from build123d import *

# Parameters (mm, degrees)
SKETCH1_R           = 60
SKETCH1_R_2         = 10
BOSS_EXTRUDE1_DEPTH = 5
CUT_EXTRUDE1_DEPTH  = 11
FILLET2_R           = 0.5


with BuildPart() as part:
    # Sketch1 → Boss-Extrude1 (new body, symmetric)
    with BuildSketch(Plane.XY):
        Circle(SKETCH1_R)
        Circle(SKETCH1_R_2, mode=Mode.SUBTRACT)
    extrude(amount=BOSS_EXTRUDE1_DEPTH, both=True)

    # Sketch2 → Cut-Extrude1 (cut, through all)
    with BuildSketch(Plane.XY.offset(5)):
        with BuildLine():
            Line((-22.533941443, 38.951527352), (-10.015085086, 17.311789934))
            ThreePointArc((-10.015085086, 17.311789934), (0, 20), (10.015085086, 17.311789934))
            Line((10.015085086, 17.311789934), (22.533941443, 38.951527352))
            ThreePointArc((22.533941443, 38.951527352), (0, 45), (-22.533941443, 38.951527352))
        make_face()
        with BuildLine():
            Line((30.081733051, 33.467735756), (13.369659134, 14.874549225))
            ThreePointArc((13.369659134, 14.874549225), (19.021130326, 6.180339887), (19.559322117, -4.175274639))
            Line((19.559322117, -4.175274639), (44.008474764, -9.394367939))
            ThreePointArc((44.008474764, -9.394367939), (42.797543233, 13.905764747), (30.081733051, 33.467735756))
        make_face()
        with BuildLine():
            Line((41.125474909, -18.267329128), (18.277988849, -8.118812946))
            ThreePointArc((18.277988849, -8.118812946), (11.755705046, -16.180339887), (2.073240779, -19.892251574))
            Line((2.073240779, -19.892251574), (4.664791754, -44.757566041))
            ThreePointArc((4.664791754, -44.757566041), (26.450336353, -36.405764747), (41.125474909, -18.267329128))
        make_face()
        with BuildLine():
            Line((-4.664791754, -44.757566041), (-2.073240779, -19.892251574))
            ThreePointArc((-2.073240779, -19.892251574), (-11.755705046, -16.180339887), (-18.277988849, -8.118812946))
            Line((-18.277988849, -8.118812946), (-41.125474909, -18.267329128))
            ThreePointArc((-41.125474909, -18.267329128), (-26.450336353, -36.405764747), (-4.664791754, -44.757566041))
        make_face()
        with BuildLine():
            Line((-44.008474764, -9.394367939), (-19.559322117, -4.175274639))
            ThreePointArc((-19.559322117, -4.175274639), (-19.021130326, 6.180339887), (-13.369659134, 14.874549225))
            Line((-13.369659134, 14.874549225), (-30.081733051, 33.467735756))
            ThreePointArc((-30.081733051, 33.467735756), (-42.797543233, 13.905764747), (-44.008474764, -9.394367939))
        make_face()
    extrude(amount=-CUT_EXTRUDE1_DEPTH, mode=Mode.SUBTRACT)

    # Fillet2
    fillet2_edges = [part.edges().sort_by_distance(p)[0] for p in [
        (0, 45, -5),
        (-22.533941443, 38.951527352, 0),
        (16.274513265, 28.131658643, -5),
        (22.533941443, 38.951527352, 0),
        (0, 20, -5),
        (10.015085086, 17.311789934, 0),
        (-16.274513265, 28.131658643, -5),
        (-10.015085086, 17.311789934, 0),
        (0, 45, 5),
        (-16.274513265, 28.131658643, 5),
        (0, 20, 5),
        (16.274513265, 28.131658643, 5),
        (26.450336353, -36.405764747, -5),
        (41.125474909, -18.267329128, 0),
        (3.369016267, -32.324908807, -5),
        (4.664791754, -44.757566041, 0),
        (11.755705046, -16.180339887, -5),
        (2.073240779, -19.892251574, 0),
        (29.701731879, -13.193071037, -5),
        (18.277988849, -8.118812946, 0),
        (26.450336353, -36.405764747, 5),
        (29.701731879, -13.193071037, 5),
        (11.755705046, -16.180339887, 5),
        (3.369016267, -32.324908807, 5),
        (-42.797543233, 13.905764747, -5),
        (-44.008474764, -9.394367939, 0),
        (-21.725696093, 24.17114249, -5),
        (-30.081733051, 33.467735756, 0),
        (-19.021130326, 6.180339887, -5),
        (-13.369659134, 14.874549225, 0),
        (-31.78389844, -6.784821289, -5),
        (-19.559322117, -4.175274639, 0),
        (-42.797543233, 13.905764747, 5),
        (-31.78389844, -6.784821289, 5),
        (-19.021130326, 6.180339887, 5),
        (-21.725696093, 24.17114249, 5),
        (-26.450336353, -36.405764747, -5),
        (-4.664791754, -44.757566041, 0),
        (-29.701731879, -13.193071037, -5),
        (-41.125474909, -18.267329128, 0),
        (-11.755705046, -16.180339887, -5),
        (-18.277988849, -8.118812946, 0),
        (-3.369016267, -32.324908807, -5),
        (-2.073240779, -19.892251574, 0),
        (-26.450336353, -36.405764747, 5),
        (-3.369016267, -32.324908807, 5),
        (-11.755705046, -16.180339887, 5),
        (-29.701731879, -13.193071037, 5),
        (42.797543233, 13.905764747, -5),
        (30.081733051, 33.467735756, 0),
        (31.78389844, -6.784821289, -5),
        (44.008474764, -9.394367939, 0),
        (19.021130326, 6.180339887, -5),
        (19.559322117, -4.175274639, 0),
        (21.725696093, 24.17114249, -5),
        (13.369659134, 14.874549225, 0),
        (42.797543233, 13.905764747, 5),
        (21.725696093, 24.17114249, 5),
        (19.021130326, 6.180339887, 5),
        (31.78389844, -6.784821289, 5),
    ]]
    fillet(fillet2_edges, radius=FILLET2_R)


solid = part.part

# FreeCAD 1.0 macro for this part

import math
import FreeCAD as App
import Part
import Sketcher
from FreeCAD import Vector
Q = App.Units.Quantity


def edges_at(feature, points):
    """Names of the edges that pass closest to the given points."""
    edges = feature.Shape.Edges
    near = lambda p: min(range(len(edges)), key=lambda i: edges[i].distToShape(Part.Vertex(*p))[0])
    return sorted({f"Edge{near(p) + 1}" for p in points})

doc = App.newDocument("Part")
body = doc.addObject("PartDesign::Body", "Body")

# Sketch on XY plane
sketch1 = body.newObject("Sketcher::SketchObject", "Sketch")
sketch1.AttachmentSupport = (doc.getObject("XY_Plane"), [""])
sketch1.MapMode = "FlatFace"
sketch1.addGeometry([
    Part.Circle(Vector(0, 0, 0), Vector(0, 0, 1), 60),
    Part.Circle(Vector(0, 0, 0), Vector(0, 0, 1), 10),
], False)
sketch1.addConstraint([
    Sketcher.Constraint("Coincident", 0, 3, -1, 1),
    Sketcher.Constraint("Coincident", 1, 3, -1, 1),
    Sketcher.Constraint("Diameter", 0, Q("120 mm")),
    Sketcher.Constraint("Diameter", 1, Q("20 mm")),
])
pad1 = body.newObject("PartDesign::Pad", "Pad")
pad1.Profile = sketch1
pad1.Length = 10
pad1.Midplane = True

# Sketch on XY plane
sketch2 = body.newObject("Sketcher::SketchObject", "Sketch001")
sketch2.AttachmentSupport = (doc.getObject("XY_Plane"), [""])
sketch2.MapMode = "FlatFace"
sketch2.AttachmentOffset = App.Placement(Vector(0, 0, 5), App.Rotation())
sketch2.addGeometry([
    Part.LineSegment(Vector(-23, 39, 0), Vector(-10, 17, 0)),  # 0
    Part.ArcOfCircle(Part.Circle(Vector(0, 0, 0), Vector(0, 0, 1), 20), math.radians(60), math.radians(120)),  # 1
    Part.LineSegment(Vector(10, 17, 0), Vector(23, 39, 0)),  # 2
    Part.ArcOfCircle(Part.Circle(Vector(0, 0, 0), Vector(0, 0, 1), 45), math.radians(60), math.radians(120)),  # 3
    Part.LineSegment(Vector(30, 33, 0), Vector(13, 15, 0)),  # 4
    Part.ArcOfCircle(Part.Circle(Vector(0, 0, 0), Vector(0, 0, 1), 20), math.radians(-12), math.radians(48)),  # 5
    Part.LineSegment(Vector(20, -4, 0), Vector(44, -9, 0)),  # 6
    Part.ArcOfCircle(Part.Circle(Vector(0, 0, 0), Vector(0, 0, 1), 45), math.radians(-12), math.radians(48)),  # 7
    Part.LineSegment(Vector(41, -18, 0), Vector(18, -8, 0)),  # 8
    Part.ArcOfCircle(Part.Circle(Vector(0, 0, 0), Vector(0, 0, 1), 20), math.radians(-84), math.radians(-24)),  # 9
    Part.LineSegment(Vector(2, -20, 0), Vector(5, -45, 0)),  # 10
    Part.ArcOfCircle(Part.Circle(Vector(0, 0, 0), Vector(0, 0, 1), 45), math.radians(-84), math.radians(-24)),  # 11
    Part.LineSegment(Vector(-5, -45, 0), Vector(-2, -20, 0)),  # 12
    Part.ArcOfCircle(Part.Circle(Vector(0, 0, 0), Vector(0, 0, 1), 20), math.radians(-156), math.radians(-96)),  # 13
    Part.LineSegment(Vector(-18, -8, 0), Vector(-41, -18, 0)),  # 14
    Part.ArcOfCircle(Part.Circle(Vector(0, 0, 0), Vector(0, 0, 1), 45), math.radians(-156), math.radians(-96)),  # 15
    Part.LineSegment(Vector(-44, -9, 0), Vector(-20, -4, 0)),  # 16
    Part.ArcOfCircle(Part.Circle(Vector(0, 0, 0), Vector(0, 0, 1), 20), math.radians(132), math.radians(192)),  # 17
    Part.LineSegment(Vector(-13, 15, 0), Vector(-30, 33, 0)),  # 18
    Part.ArcOfCircle(Part.Circle(Vector(0, 0, 0), Vector(0, 0, 1), 45), math.radians(132), math.radians(192)),  # 19
], False)
sketch2.addConstraint([
    Sketcher.Constraint("Coincident", 0, 2, 1, 2),
    Sketcher.Constraint("Coincident", 1, 1, 2, 1),
    Sketcher.Constraint("Coincident", 2, 2, 3, 1),
    Sketcher.Constraint("Coincident", 3, 2, 0, 1),
    Sketcher.Constraint("Coincident", 4, 2, 5, 2),
    Sketcher.Constraint("Coincident", 5, 1, 6, 1),
    Sketcher.Constraint("Coincident", 6, 2, 7, 1),
    Sketcher.Constraint("Coincident", 7, 2, 4, 1),
    Sketcher.Constraint("Coincident", 8, 2, 9, 2),
    Sketcher.Constraint("Coincident", 9, 1, 10, 1),
    Sketcher.Constraint("Coincident", 10, 2, 11, 1),
    Sketcher.Constraint("Coincident", 11, 2, 8, 1),
    Sketcher.Constraint("Coincident", 12, 2, 13, 2),
    Sketcher.Constraint("Coincident", 13, 1, 14, 1),
    Sketcher.Constraint("Coincident", 14, 2, 15, 1),
    Sketcher.Constraint("Coincident", 15, 2, 12, 1),
    Sketcher.Constraint("Coincident", 16, 2, 17, 2),
    Sketcher.Constraint("Coincident", 17, 1, 18, 1),
    Sketcher.Constraint("Coincident", 18, 2, 19, 1),
    Sketcher.Constraint("Coincident", 19, 2, 16, 1),
    Sketcher.Constraint("Coincident", 1, 3, -1, 1),
    Sketcher.Constraint("Coincident", 3, 3, -1, 1),
    Sketcher.Constraint("Coincident", 5, 3, -1, 1),
    Sketcher.Constraint("Coincident", 7, 3, -1, 1),
    Sketcher.Constraint("Coincident", 9, 3, -1, 1),
    Sketcher.Constraint("Coincident", 11, 3, -1, 1),
    Sketcher.Constraint("Coincident", 13, 3, -1, 1),
    Sketcher.Constraint("Coincident", 15, 3, -1, 1),
    Sketcher.Constraint("Coincident", 17, 3, -1, 1),
    Sketcher.Constraint("Coincident", 19, 3, -1, 1),
    Sketcher.Constraint("Equal", 1, 5),
    Sketcher.Constraint("Equal", 3, 7),
    Sketcher.Constraint("Equal", 5, 9),
    Sketcher.Constraint("Equal", 7, 11),
    Sketcher.Constraint("Equal", 9, 13),
    Sketcher.Constraint("Equal", 11, 15),
    Sketcher.Constraint("Equal", 13, 17),
    Sketcher.Constraint("Equal", 15, 19),
    Sketcher.Constraint("Horizontal", 0, 2, 1, 1),
    Sketcher.Constraint("Horizontal", 2, 2, 3, 2),
    Sketcher.Constraint("Horizontal", 9, 1, 12, 2),
    Sketcher.Constraint("Horizontal", 8, 2, 13, 1),
    Sketcher.Constraint("Horizontal", 11, 2, 14, 2),
    Sketcher.Constraint("Horizontal", 10, 2, 15, 2),
    Sketcher.Constraint("Horizontal", 5, 1, 16, 2),
    Sketcher.Constraint("Horizontal", 4, 2, 17, 1),
    Sketcher.Constraint("Horizontal", 7, 2, 18, 2),
    Sketcher.Constraint("Horizontal", 6, 2, 19, 2),
    Sketcher.Constraint("Radius", 1, Q("20 mm")),
    Sketcher.Constraint("Radius", 3, Q("45 mm")),
    Sketcher.Constraint("DistanceX", 11, 2, 6, 2, Q("2.883 mm")),
    Sketcher.Constraint("DistanceY", -1, 1, 0, 2, Q("17.31179 mm")),
    Sketcher.Constraint("DistanceX", -1, 1, 2, 2, Q("22.533941 mm")),
    Sketcher.Constraint("DistanceX", -1, 1, 4, 2, Q("13.369659 mm")),
    Sketcher.Constraint("DistanceX", -1, 1, 8, 2, Q("18.277989 mm")),
    Sketcher.Constraint("DistanceX", -1, 1, 9, 1, Q("2.073241 mm")),
    Sketcher.Constraint("DistanceX", -1, 1, 10, 2, Q("4.664792 mm")),
    Sketcher.Constraint("DistanceY", 11, 2, -1, 1, Q("18.267329 mm")),
    Sketcher.Constraint("DistanceX", 2, 2, 7, 2, Q("7.547792 mm")),
    Sketcher.Constraint("DistanceX", 5, 1, 7, 2, Q("10.522411 mm")),
])
pocket1 = body.newObject("PartDesign::Pocket", "Pocket")
pocket1.Profile = sketch2
pocket1.Type = "ThroughAll"
doc.recompute()

fillet = body.newObject("PartDesign::Fillet", "Fillet")
fillet.Base = (pocket1, edges_at(pocket1, [
    (0, 45, -5),
    (-22.534, 38.952, 0),
    (16.275, 28.132, -5),
    (22.534, 38.952, 0),
    (0, 20, -5),
    (10.015, 17.312, 0),
    (-16.275, 28.132, -5),
    (-10.015, 17.312, 0),
    (0, 45, 5),
    (-16.275, 28.132, 5),
    (0, 20, 5),
    (16.275, 28.132, 5),
    (26.45, -36.406, -5),
    (41.125, -18.267, 0),
    (3.369, -32.325, -5),
    (4.665, -44.758, 0),
    (11.756, -16.18, -5),
    (2.073, -19.892, 0),
    (29.702, -13.193, -5),
    (18.278, -8.119, 0),
    (26.45, -36.406, 5),
    (29.702, -13.193, 5),
    (11.756, -16.18, 5),
    (3.369, -32.325, 5),
    (-42.798, 13.906, -5),
    (-44.008, -9.394, 0),
    (-21.726, 24.171, -5),
    (-30.082, 33.468, 0),
    (-19.021, 6.18, -5),
    (-13.37, 14.875, 0),
    (-31.784, -6.785, -5),
    (-19.559, -4.175, 0),
    (-42.798, 13.906, 5),
    (-31.784, -6.785, 5),
    (-19.021, 6.18, 5),
    (-21.726, 24.171, 5),
    (-26.45, -36.406, -5),
    (-4.665, -44.758, 0),
    (-29.702, -13.193, -5),
    (-41.125, -18.267, 0),
    (-11.756, -16.18, -5),
    (-18.278, -8.119, 0),
    (-3.369, -32.325, -5),
    (-2.073, -19.892, 0),
    (-26.45, -36.406, 5),
    (-3.369, -32.325, 5),
    (-11.756, -16.18, 5),
    (-29.702, -13.193, 5),
    (42.798, 13.906, -5),
    (30.082, 33.468, 0),
    (31.784, -6.785, -5),
    (44.008, -9.394, 0),
    (19.021, 6.18, -5),
    (19.559, -4.175, 0),
    (21.726, 24.171, -5),
    (13.37, 14.875, 0),
    (42.798, 13.906, 5),
    (21.726, 24.171, 5),
    (19.021, 6.18, 5),
    (31.784, -6.785, 5),
]))
fillet.Radius = 0.5

doc.recompute()
